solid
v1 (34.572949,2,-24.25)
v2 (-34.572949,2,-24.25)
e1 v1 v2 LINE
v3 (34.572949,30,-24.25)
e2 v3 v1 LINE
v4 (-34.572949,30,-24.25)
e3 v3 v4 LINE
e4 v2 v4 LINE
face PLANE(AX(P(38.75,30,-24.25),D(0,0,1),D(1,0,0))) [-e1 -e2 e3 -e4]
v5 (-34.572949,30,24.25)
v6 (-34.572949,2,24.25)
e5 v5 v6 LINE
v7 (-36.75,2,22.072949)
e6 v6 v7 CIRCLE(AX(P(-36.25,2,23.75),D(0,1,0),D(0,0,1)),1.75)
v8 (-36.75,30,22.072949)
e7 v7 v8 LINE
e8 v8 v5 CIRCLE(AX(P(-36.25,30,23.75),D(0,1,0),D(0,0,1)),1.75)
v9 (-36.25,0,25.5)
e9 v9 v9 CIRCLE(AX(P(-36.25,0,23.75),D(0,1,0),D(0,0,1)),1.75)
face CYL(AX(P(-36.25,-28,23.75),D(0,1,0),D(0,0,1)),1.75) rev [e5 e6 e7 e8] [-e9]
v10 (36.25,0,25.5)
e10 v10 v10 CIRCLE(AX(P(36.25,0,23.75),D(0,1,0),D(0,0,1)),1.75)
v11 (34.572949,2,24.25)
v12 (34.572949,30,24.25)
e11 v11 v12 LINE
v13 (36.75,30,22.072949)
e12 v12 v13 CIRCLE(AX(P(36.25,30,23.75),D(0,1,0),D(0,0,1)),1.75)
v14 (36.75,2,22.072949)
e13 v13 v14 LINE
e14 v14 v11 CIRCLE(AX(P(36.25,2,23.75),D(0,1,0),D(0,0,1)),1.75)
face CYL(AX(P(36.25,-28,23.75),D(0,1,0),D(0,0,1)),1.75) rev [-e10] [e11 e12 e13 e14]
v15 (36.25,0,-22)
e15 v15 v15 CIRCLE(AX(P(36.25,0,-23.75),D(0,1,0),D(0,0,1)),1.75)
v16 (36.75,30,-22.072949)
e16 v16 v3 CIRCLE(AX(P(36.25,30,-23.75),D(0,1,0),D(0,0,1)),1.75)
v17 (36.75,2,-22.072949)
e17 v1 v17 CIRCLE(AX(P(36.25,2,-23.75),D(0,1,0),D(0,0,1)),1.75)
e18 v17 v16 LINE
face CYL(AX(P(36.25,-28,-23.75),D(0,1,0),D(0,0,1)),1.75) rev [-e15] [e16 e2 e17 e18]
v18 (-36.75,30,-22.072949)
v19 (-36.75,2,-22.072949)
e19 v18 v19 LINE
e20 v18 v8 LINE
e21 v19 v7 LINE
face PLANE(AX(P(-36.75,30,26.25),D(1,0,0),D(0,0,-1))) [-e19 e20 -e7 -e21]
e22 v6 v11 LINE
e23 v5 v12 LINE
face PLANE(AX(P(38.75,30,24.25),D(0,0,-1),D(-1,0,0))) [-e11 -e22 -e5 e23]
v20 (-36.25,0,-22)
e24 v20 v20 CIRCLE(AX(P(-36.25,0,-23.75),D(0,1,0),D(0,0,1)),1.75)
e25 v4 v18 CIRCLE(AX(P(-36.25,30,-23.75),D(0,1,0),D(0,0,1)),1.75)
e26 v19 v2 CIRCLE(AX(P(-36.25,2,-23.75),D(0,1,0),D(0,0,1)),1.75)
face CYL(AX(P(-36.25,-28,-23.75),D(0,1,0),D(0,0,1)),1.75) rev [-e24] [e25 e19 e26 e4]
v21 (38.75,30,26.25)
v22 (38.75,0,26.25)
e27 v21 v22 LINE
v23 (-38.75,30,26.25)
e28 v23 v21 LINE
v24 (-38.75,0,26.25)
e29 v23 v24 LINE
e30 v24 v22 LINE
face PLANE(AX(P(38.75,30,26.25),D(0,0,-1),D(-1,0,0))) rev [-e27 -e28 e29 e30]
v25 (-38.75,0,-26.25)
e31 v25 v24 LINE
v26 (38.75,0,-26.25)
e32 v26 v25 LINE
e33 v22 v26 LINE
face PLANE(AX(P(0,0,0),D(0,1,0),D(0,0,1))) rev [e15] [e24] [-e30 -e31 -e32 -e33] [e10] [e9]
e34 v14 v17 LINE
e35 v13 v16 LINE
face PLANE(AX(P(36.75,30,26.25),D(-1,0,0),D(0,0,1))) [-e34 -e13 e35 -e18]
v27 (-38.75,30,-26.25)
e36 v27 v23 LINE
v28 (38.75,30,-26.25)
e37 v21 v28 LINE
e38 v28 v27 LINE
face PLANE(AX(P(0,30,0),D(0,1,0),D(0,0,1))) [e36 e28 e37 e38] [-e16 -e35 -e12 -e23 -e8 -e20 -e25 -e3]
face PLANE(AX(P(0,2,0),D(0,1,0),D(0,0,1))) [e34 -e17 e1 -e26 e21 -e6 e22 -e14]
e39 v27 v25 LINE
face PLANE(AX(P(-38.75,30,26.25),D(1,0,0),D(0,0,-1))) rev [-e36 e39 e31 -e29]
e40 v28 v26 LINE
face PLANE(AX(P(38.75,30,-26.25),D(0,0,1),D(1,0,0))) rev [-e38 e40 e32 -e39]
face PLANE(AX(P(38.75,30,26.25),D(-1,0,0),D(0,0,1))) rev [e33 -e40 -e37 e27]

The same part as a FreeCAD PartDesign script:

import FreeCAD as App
import Part
import Sketcher

V = App.Vector
Q = App.Units.Quantity


def faces_at(feature, points):
    """Names of the faces that lie closest to the given points."""
    faces = feature.Shape.Faces
    near = lambda p: min(range(len(faces)), key=lambda i: faces[i].distToShape(Part.Vertex(*p))[0])
    return sorted({f"Face{near(p) + 1}" for p in points})


def add_polygon(sketch, points):
    """Adds a closed chain of lines whose ends are joined by coincident constraints."""
    first, n = sketch.GeometryCount, len(points)
    for a, b in zip(points, points[1:] + points[:1]):
        sketch.addGeometry(Part.LineSegment(App.Vector(*a, 0), App.Vector(*b, 0)), False)
    for i in range(n):
        sketch.addConstraint(Sketcher.Constraint("Coincident", first + i, 2, first + (i + 1) % n, 1))

doc = App.newDocument("Part")
params = doc.addObject("Spreadsheet::Sheet", "Params")
for row, (alias, value) in enumerate([
    ("sketch1_width", "77.5 mm"),
    ("sketch1_height", "52.5 mm"),
    ("pad1_length", "30 mm"),
    ("thickness_wall", "2 mm"),
    ("sketch2_diameter", "3.5 mm"),
    ("pocket1_length", "60 mm"),
], start=1):
    params.set(f"A{row}", alias)
    params.set(f"B{row}", "=" + value)
    params.setAlias(f"B{row}", alias)

body = doc.addObject("PartDesign::Body", "Body")

sketch1 = body.newObject("Sketcher::SketchObject", "Sketch")
sketch1.AttachmentSupport = (doc.getObject("XZ_Plane"), [""])
sketch1.MapMode = "FlatFace"
add_polygon(sketch1, [(-39, -26), (-39, 26), (39, 26), (39, -26)])
sketch1.addConstraint([
    Sketcher.Constraint("Vertical", 0),
    Sketcher.Constraint("Horizontal", 1),
    Sketcher.Constraint("Vertical", 2),
    Sketcher.Constraint("Horizontal", 3),
    Sketcher.Constraint("Symmetric", 0, 2, 2, 2, -1, 1),
    Sketcher.Constraint("DistanceX", 1, 1, 1, 2, Q("77.5 mm")),
    Sketcher.Constraint("DistanceY", 0, 1, 0, 2, Q("52.5 mm")),
])
sketch1.setExpression("Constraints[9]", "Params.sketch1_width")
sketch1.setExpression("Constraints[10]", "Params.sketch1_height")
pad1 = body.newObject("PartDesign::Pad", "Pad")
pad1.Profile = sketch1
pad1.setExpression("Length", "Params.pad1_length")
pad1.Reversed = True
doc.recompute()

thickness = body.newObject("PartDesign::Thickness", "Thickness")
thickness.Base = (pad1, faces_at(pad1, [(0, 30, 0)]))
thickness.setExpression("Value", "Params.thickness_wall")
thickness.Reversed = True
thickness.Join = "Intersection"

sketch2 = body.newObject("Sketcher::SketchObject", "Sketch001")
sketch2.AttachmentSupport = (doc.getObject("XZ_Plane"), [""])
sketch2.MapMode = "FlatFace"
sketch2.AttachmentOffset = App.Placement(V(0, 0, -2), App.Rotation())
sketch2.addGeometry([
    Part.Circle(V(-36.2, -23.8, 0), V(0, 0, 1), 1.8),
    Part.Circle(V(36.2, -23.8, 0), V(0, 0, 1), 1.8),
    Part.Circle(V(36.2, 23.8, 0), V(0, 0, 1), 1.8),
    Part.Circle(V(-36.2, 23.8, 0), V(0, 0, 1), 1.8),
], False)
sketch2.addConstraint([
    Sketcher.Constraint("Equal", 0, 1),
    Sketcher.Constraint("Equal", 1, 2),
    Sketcher.Constraint("Equal", 2, 3),
    Sketcher.Constraint("Symmetric", 0, 3, 2, 3, -1, 1),
    Sketcher.Constraint("Symmetric", 1, 3, 3, 3, -1, 1),
    Sketcher.Constraint("Symmetric", 0, 3, 1, 3, -2),
    Sketcher.Constraint("Diameter", 0, Q("3.5 mm")),
    Sketcher.Constraint("DistanceX", 0, 3, 1, 3, Q("72.5 mm")),
    Sketcher.Constraint("DistanceY", 1, 3, 2, 3, Q("47.5 mm")),
])
sketch2.setExpression("Constraints[6]", "Params.sketch2_diameter")
pocket1 = body.newObject("PartDesign::Pocket", "Pocket")
pocket1.Profile = sketch2
pocket1.setExpression("Length", "Params.pocket1_length")
pocket1.Midplane = True

doc.recompute()
